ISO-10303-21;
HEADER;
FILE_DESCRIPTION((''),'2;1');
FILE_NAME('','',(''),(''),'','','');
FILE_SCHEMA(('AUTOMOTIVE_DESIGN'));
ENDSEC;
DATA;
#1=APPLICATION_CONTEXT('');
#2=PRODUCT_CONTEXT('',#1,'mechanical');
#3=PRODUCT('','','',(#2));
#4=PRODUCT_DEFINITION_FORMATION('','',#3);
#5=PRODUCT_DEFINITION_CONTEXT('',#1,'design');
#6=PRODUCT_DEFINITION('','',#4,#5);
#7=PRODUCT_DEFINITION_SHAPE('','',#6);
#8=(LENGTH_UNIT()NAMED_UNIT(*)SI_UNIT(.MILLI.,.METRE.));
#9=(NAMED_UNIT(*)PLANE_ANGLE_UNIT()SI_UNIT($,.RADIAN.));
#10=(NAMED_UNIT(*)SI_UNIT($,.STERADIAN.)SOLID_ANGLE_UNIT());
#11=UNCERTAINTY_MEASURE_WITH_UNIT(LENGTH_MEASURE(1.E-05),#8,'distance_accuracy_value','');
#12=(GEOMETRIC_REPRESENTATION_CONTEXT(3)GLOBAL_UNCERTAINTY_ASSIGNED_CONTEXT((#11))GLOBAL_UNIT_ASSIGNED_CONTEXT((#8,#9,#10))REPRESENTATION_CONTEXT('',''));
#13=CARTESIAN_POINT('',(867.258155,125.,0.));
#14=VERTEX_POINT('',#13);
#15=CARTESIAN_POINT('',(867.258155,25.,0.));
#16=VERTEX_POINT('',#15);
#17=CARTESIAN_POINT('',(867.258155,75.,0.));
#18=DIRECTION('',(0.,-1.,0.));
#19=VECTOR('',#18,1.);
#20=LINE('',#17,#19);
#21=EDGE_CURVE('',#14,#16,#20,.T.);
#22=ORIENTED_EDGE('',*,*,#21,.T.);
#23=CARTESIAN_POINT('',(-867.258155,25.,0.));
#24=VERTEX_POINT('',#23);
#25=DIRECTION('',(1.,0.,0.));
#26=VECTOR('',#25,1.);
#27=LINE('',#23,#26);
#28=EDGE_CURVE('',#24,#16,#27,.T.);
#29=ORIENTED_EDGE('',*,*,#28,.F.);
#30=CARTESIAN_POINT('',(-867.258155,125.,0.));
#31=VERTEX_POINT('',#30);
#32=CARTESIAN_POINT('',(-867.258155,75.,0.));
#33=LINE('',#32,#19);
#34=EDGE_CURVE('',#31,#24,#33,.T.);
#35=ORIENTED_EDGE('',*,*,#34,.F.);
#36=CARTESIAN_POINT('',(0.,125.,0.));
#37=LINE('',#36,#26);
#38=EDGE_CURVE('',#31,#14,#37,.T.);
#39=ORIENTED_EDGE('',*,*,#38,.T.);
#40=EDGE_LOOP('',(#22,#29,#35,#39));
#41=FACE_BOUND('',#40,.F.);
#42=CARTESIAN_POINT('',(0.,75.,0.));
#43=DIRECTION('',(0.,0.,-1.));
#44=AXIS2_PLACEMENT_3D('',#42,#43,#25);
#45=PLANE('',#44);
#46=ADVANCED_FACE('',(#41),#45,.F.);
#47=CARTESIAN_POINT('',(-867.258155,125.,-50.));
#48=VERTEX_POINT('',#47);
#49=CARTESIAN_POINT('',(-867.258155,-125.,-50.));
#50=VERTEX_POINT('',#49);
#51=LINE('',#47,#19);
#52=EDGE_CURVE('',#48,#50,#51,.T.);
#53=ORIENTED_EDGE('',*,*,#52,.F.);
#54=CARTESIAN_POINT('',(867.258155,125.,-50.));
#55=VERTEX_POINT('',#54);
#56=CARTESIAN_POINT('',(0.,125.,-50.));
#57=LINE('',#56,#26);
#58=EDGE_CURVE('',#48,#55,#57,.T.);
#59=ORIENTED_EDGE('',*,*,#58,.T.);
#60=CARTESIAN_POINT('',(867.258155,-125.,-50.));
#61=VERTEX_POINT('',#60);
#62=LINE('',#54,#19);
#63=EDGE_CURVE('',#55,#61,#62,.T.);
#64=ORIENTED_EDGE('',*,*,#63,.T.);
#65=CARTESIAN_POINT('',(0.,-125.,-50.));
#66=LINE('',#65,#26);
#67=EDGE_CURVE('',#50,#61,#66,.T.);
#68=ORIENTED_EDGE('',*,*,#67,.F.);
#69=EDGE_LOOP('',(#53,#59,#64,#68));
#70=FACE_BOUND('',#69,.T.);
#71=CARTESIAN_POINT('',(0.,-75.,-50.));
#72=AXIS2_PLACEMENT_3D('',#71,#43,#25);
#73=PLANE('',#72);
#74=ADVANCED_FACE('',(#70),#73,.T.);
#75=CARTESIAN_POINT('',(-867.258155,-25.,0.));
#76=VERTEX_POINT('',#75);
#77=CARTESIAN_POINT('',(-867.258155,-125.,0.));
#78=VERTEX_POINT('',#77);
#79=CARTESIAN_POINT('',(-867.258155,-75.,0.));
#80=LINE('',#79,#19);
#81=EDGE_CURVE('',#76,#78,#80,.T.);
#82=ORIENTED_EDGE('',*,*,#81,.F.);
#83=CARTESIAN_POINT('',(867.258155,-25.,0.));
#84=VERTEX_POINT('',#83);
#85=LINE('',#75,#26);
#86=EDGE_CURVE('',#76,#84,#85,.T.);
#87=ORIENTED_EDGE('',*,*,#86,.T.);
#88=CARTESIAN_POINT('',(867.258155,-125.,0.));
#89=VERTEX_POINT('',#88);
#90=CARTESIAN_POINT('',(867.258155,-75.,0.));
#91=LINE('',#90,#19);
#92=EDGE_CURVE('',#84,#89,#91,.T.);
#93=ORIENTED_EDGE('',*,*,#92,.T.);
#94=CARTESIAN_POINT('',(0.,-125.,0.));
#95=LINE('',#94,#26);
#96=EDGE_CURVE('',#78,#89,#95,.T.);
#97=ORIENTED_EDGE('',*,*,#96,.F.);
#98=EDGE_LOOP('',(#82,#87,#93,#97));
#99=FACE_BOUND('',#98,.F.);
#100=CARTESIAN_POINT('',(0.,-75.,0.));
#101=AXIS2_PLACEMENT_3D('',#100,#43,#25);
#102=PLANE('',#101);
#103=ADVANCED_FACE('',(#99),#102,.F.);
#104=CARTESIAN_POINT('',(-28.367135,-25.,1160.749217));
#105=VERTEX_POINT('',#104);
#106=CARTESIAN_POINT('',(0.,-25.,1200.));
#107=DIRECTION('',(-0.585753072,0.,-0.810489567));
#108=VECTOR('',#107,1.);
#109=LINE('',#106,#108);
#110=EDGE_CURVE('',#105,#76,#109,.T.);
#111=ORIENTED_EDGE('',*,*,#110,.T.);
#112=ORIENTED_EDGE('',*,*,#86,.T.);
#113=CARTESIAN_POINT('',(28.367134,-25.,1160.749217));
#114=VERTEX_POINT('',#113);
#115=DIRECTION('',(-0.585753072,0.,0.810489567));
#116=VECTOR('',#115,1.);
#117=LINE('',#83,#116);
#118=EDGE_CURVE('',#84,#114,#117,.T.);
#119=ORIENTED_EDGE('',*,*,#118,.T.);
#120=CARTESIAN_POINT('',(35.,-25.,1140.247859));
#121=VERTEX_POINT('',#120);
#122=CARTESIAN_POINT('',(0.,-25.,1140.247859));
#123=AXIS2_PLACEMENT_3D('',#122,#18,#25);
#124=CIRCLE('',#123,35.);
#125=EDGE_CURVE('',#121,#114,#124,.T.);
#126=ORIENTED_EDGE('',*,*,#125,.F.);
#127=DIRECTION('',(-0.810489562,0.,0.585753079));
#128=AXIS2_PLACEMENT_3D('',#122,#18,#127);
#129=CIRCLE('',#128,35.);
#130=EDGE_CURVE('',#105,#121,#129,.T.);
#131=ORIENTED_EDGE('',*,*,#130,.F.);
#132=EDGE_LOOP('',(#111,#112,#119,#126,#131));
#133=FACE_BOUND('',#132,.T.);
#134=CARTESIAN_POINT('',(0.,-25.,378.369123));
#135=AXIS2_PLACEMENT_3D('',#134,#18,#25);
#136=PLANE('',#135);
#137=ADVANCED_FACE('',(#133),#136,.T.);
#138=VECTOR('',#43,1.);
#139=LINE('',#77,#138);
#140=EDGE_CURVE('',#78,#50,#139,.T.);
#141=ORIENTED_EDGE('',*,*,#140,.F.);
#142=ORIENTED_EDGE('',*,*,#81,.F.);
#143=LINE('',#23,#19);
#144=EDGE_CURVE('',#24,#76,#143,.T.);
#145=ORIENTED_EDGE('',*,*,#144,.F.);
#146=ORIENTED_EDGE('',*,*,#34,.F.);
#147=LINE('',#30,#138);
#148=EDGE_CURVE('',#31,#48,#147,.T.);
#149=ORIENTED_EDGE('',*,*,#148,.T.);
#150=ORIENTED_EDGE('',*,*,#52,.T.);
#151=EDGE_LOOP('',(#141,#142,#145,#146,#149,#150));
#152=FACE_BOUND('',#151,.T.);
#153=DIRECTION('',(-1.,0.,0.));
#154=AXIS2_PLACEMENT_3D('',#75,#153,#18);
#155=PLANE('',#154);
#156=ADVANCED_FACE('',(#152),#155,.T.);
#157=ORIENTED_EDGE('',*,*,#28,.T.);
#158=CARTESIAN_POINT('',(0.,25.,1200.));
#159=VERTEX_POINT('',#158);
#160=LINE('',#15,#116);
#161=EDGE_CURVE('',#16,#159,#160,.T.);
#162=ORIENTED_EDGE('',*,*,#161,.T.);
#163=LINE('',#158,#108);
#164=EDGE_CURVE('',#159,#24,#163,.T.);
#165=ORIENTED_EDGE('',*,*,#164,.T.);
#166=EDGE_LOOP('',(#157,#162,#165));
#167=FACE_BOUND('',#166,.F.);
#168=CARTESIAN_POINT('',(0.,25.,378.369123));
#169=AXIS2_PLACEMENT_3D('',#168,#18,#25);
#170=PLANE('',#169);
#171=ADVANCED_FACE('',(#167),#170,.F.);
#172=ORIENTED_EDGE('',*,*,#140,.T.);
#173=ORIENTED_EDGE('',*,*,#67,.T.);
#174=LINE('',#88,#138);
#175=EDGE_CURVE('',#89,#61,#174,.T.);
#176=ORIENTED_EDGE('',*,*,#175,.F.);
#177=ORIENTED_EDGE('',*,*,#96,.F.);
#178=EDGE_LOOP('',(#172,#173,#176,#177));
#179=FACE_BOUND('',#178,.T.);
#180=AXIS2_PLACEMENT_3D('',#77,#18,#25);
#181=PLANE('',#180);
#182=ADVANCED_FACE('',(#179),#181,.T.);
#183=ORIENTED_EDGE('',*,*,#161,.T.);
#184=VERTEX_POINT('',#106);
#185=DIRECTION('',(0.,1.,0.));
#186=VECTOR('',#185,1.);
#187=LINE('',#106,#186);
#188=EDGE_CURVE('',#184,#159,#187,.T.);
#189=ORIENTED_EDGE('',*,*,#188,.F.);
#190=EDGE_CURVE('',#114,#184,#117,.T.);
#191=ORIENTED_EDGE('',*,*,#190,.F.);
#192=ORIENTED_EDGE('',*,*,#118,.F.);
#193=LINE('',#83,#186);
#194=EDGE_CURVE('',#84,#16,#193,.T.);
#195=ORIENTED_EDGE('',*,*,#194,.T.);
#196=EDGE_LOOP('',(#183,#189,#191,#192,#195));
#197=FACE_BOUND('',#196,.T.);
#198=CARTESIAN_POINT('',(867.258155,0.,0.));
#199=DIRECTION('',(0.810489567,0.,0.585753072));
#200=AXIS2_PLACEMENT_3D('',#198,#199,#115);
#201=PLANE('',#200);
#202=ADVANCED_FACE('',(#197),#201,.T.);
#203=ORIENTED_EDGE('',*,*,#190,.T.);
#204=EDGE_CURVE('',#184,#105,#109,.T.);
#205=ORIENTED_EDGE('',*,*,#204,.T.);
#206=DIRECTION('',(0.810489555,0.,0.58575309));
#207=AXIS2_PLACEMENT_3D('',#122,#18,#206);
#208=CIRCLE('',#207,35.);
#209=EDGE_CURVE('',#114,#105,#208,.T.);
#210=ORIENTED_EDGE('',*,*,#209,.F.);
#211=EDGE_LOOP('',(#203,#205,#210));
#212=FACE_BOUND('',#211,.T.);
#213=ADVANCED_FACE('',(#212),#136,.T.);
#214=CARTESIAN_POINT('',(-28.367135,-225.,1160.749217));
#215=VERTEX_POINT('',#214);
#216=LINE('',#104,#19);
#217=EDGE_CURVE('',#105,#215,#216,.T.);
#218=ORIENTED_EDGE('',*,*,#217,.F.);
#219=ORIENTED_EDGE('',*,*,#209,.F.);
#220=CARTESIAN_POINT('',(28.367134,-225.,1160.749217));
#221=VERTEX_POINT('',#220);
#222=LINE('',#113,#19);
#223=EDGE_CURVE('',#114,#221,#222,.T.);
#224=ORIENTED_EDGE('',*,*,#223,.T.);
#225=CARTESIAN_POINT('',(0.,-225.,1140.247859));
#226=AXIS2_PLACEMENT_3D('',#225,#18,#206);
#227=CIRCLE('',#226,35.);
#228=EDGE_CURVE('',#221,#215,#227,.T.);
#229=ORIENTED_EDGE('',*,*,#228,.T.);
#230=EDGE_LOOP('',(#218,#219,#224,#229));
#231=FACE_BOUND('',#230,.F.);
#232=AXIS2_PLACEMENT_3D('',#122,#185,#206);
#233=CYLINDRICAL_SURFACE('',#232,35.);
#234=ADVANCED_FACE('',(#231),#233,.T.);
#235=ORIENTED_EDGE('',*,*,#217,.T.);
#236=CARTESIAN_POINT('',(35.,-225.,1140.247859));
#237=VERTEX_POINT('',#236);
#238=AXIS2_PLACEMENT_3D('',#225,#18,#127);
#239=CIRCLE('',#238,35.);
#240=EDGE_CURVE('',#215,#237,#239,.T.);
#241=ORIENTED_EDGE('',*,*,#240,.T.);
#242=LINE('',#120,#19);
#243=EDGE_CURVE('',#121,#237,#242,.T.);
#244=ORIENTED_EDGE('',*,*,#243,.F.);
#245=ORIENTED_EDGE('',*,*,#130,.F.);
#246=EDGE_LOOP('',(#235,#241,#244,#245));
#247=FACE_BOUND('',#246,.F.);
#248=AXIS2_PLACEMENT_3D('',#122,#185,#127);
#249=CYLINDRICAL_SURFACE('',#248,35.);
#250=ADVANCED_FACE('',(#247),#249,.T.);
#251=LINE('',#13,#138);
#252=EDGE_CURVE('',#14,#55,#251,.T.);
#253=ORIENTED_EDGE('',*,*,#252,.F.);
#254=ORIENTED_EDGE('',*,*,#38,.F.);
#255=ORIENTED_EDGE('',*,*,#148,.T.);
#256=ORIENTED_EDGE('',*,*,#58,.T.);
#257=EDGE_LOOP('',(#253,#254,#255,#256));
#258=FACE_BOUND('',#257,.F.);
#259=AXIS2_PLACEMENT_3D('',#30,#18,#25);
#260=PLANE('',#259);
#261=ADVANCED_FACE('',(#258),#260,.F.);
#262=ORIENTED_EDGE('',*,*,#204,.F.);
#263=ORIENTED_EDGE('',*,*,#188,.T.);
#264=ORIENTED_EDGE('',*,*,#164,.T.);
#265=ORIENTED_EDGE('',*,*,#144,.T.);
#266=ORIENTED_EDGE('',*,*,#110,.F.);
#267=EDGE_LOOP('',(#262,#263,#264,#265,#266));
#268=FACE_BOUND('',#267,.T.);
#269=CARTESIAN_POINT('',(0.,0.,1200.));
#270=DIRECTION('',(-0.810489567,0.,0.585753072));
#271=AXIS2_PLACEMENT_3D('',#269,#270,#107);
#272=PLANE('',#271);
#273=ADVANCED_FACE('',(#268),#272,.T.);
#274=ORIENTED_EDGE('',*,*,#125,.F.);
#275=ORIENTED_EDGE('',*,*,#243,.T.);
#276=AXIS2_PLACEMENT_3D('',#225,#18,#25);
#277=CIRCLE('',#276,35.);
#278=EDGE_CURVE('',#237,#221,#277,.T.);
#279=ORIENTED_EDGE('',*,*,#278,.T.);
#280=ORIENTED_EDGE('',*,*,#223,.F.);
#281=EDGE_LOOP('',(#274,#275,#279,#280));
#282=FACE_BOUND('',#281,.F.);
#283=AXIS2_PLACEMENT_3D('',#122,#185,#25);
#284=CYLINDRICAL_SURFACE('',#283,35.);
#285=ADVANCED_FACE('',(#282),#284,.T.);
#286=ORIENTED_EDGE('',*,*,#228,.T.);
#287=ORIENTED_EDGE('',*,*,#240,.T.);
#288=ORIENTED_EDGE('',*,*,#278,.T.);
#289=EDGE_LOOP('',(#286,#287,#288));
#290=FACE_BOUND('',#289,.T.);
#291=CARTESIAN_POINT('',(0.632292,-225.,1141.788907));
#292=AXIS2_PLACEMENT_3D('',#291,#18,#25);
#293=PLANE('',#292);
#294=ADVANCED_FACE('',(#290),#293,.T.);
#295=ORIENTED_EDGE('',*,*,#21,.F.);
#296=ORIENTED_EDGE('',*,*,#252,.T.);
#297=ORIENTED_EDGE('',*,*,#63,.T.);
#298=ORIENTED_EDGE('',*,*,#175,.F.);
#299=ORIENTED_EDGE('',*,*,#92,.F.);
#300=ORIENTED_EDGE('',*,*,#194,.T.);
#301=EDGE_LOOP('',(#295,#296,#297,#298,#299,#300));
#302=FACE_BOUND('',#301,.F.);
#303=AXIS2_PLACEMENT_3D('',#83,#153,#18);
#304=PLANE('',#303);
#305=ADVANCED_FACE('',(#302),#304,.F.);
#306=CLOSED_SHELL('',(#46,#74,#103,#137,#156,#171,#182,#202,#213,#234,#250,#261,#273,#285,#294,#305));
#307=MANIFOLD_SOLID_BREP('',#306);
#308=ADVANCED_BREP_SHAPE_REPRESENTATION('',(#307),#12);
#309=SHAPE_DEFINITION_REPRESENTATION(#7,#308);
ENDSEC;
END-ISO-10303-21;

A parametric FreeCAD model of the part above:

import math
import FreeCAD as App
import Part
import Sketcher

V = App.Vector
Q = App.Units.Quantity


def add_polygon(sketch, points):
    """Adds a closed chain of lines whose ends are joined by coincident constraints."""
    first, n = sketch.GeometryCount, len(points)
    for a, b in zip(points, points[1:] + points[:1]):
        sketch.addGeometry(Part.LineSegment(App.Vector(*a, 0), App.Vector(*b, 0)), False)
    for i in range(n):
        sketch.addConstraint(Sketcher.Constraint("Coincident", first + i, 2, first + (i + 1) % n, 1))

doc = App.newDocument("Part")
body = doc.addObject("PartDesign::Body", "Body")

# Sketch on XZ plane
sketch1 = body.newObject("Sketcher::SketchObject", "Sketch")
sketch1.AttachmentSupport = (doc.getObject("XZ_Plane"), [""])
sketch1.MapMode = "FlatFace"
add_polygon(sketch1, [(0, 1200), (-867, 0), (867, 0)])  # lines 0-2
sketch1.addConstraint([
    Sketcher.Constraint("Horizontal", 1),
    Sketcher.Constraint("Symmetric", 0, 2, 1, 2, -1, 1),
    Sketcher.Constraint("PointOnObject", 2, 2, -2),
    Sketcher.Constraint("DistanceY", -1, 1, 2, 2, Q("1200 mm")),
    Sketcher.Constraint("DistanceX", 1, 1, 1, 2, Q("1734.51631 mm")),
])
pad1 = body.newObject("PartDesign::Pad", "Pad")
pad1.Profile = sketch1
pad1.Length = 50
pad1.Midplane = True

# Sketch on XZ plane
sketch2 = body.newObject("Sketcher::SketchObject", "Sketch001")
sketch2.AttachmentSupport = (doc.getObject("XZ_Plane"), [""])
sketch2.MapMode = "FlatFace"
sketch2.AttachmentOffset = App.Placement(V(0, 0, 25), App.Rotation())
sketch2.addGeometry([
    Part.ArcOfCircle(Part.Circle(V(0, 1140, 0), V(0, 0, 1), 35), math.radians(144), math.radians(360)),
    Part.ArcOfCircle(Part.Circle(V(0, 1140, 0), V(0, 0, 1), 35), math.radians(0), math.radians(36)),
    Part.ArcOfCircle(Part.Circle(V(0, 1140, 0), V(0, 0, 1), 35), math.radians(36), math.radians(144)),
], False)
sketch2.addConstraint([
    Sketcher.Constraint("Tangent", 0, 2, 1, 1),
    Sketcher.Constraint("Tangent", 1, 2, 2, 1),
    Sketcher.Constraint("Tangent", 2, 2, 0, 1),
    Sketcher.Constraint("Symmetric", 1, 2, 2, 2, -2),
    Sketcher.Constraint("Horizontal", 2, 3, 0, 2),
    Sketcher.Constraint("Radius", 0, Q("35 mm")),
    Sketcher.Constraint("DistanceY", -1, 1, 0, 3, Q("1140.247859 mm")),
    Sketcher.Constraint("DistanceY", 0, 2, 1, 2, Q("20.501358 mm")),
])
pad2 = body.newObject("PartDesign::Pad", "Pad001")
pad2.Profile = sketch2
pad2.Length = 200

# Sketch on XY plane
sketch3 = body.newObject("Sketcher::SketchObject", "Sketch002")
sketch3.AttachmentSupport = (doc.getObject("XY_Plane"), [""])
sketch3.MapMode = "FlatFace"
add_polygon(sketch3, [(-867, -125), (-867, 125), (867, 125), (867, -125)])  # lines 0-3
sketch3.addConstraint([
    Sketcher.Constraint("Vertical", 0),
    Sketcher.Constraint("Horizontal", 1),
    Sketcher.Constraint("Vertical", 2),
    Sketcher.Constraint("Horizontal", 3),
    Sketcher.Constraint("Symmetric", 0, 2, 2, 2, -1, 1),
    Sketcher.Constraint("DistanceY", 0, 1, 0, 2, Q("250 mm")),
    Sketcher.Constraint("DistanceX", 1, 1, 1, 2, Q("1734.51631 mm")),
])
pad3 = body.newObject("PartDesign::Pad", "Pad002")
pad3.Profile = sketch3
pad3.Length = 50
pad3.Reversed = True

doc.recompute()
